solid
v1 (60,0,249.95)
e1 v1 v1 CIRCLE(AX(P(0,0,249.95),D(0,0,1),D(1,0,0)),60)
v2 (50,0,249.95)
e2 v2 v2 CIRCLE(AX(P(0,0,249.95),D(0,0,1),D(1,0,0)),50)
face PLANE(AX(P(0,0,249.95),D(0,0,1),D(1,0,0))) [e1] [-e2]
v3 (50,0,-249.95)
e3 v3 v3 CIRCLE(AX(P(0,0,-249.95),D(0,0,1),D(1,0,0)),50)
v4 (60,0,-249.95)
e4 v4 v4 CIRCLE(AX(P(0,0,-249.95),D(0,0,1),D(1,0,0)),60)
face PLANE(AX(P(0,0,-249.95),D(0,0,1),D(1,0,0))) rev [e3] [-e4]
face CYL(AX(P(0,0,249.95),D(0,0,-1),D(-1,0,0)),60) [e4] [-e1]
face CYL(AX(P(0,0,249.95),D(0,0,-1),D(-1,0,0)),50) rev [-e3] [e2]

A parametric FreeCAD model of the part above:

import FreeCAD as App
import Part
import Sketcher
from FreeCAD import Vector
Q = App.Units.Quantity

doc = App.newDocument("Part")
body = doc.addObject("PartDesign::Body", "Body")

# Sketch on XY plane
sketch1 = body.newObject("Sketcher::SketchObject", "Sketch")
sketch1.AttachmentSupport = (doc.getObject("XY_Plane"), [""])
sketch1.MapMode = "FlatFace"
sketch1.addGeometry([
    Part.Circle(Vector(0, 0, 0), Vector(0, 0, 1), 60),
    Part.Circle(Vector(0, 0, 0), Vector(0, 0, 1), 50),
], False)
sketch1.addConstraint([
    Sketcher.Constraint("Coincident", 0, 3, -1, 1),
    Sketcher.Constraint("Coincident", 1, 3, -1, 1),
    Sketcher.Constraint("Diameter", 0, Q("120 mm")),
    Sketcher.Constraint("Diameter", 1, Q("100 mm")),
])
pad1 = body.newObject("PartDesign::Pad", "Pad")
pad1.Profile = sketch1
pad1.Length = 499.9
pad1.Midplane = True

doc.recompute()
